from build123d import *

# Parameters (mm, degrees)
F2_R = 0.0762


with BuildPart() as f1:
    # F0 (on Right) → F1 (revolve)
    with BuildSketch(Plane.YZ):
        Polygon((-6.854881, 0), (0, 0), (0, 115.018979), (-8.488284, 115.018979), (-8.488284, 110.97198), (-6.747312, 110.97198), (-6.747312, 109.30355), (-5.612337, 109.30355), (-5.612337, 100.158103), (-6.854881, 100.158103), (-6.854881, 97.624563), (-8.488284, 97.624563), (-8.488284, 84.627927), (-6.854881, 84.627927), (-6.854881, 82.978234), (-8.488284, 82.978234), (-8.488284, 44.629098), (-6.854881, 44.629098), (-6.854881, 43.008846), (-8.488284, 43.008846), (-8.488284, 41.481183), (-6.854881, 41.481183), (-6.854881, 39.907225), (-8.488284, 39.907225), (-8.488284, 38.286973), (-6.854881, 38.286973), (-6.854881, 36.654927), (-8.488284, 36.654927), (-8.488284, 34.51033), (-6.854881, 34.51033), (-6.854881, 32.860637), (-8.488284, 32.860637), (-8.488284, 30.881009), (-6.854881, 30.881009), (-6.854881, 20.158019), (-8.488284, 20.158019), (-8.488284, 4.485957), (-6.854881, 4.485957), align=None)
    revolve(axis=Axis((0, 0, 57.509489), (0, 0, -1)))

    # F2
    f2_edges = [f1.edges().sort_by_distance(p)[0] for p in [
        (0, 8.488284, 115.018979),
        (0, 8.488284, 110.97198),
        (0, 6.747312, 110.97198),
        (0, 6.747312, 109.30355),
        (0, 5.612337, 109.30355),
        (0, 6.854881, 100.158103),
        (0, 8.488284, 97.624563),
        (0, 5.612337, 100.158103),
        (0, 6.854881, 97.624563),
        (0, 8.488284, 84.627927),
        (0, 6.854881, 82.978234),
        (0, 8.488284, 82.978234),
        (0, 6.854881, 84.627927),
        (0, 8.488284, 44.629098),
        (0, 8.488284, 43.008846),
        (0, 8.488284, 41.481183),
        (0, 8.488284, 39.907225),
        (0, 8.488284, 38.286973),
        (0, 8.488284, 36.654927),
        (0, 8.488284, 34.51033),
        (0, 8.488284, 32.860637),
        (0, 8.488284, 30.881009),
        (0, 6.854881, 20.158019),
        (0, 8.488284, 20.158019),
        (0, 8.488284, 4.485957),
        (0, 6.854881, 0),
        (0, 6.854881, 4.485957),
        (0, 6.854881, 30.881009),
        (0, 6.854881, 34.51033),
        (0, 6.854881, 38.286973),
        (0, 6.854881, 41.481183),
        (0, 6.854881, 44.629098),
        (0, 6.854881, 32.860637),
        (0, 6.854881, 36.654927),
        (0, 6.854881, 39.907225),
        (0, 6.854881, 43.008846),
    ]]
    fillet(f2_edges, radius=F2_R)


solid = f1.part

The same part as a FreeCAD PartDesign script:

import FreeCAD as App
import Part
import Sketcher
from FreeCAD import Vector
Q = App.Units.Quantity


def edges_at(feature, points):
    """Names of the edges that pass closest to the given points."""
    edges = feature.Shape.Edges
    near = lambda p: min(range(len(edges)), key=lambda i: edges[i].distToShape(Part.Vertex(*p))[0])
    return sorted({f"Edge{near(p) + 1}" for p in points})

doc = App.newDocument("Part")
body = doc.addObject("PartDesign::Body", "Body")

# Sketch on YZ plane
sketch1 = doc.addObject("Sketcher::SketchObject", "Sketch")
body.addObject(sketch1)
sketch1.AttachmentSupport = (doc.YZ_Plane, [""])
sketch1.MapMode = "FlatFace"
sketch1.addGeometry([
    Part.LineSegment(Vector(-6.9, 0, 0), Vector(0, 0, 0)),  # 0
    Part.LineSegment(Vector(0, 0, 0), Vector(0, 115, 0)),  # 1
    Part.LineSegment(Vector(0, 115, 0), Vector(-8.5, 115, 0)),  # 2
    Part.LineSegment(Vector(-8.5, 115, 0), Vector(-8.5, 111, 0)),  # 3
    Part.LineSegment(Vector(-8.5, 111, 0), Vector(-6.7, 111, 0)),  # 4
    Part.LineSegment(Vector(-6.7, 111, 0), Vector(-6.7, 109.3, 0)),  # 5
    Part.LineSegment(Vector(-6.7, 109.3, 0), Vector(-5.6, 109.3, 0)),  # 6
    Part.LineSegment(Vector(-5.6, 109.3, 0), Vector(-5.6, 100.2, 0)),  # 7
    Part.LineSegment(Vector(-5.6, 100.2, 0), Vector(-6.9, 100.2, 0)),  # 8
    Part.LineSegment(Vector(-6.9, 100.2, 0), Vector(-6.9, 97.6, 0)),  # 9
    Part.LineSegment(Vector(-6.9, 97.6, 0), Vector(-8.5, 97.6, 0)),  # 10
    Part.LineSegment(Vector(-8.5, 97.6, 0), Vector(-8.5, 84.6, 0)),  # 11
    Part.LineSegment(Vector(-8.5, 84.6, 0), Vector(-6.9, 84.6, 0)),  # 12
    Part.LineSegment(Vector(-6.9, 84.6, 0), Vector(-6.9, 83, 0)),  # 13
    Part.LineSegment(Vector(-6.9, 83, 0), Vector(-8.5, 83, 0)),  # 14
    Part.LineSegment(Vector(-8.5, 83, 0), Vector(-8.5, 44.6, 0)),  # 15
    Part.LineSegment(Vector(-8.5, 44.6, 0), Vector(-6.9, 44.6, 0)),  # 16
    Part.LineSegment(Vector(-6.9, 44.6, 0), Vector(-6.9, 43, 0)),  # 17
    Part.LineSegment(Vector(-6.9, 43, 0), Vector(-8.5, 43, 0)),  # 18
    Part.LineSegment(Vector(-8.5, 43, 0), Vector(-8.5, 41.5, 0)),  # 19
    Part.LineSegment(Vector(-8.5, 41.5, 0), Vector(-6.9, 41.5, 0)),  # 20
    Part.LineSegment(Vector(-6.9, 41.5, 0), Vector(-6.9, 39.9, 0)),  # 21
    Part.LineSegment(Vector(-6.9, 39.9, 0), Vector(-8.5, 39.9, 0)),  # 22
    Part.LineSegment(Vector(-8.5, 39.9, 0), Vector(-8.5, 38.3, 0)),  # 23
    Part.LineSegment(Vector(-8.5, 38.3, 0), Vector(-6.9, 38.3, 0)),  # 24
    Part.LineSegment(Vector(-6.9, 38.3, 0), Vector(-6.9, 36.7, 0)),  # 25
    Part.LineSegment(Vector(-6.9, 36.7, 0), Vector(-8.5, 36.7, 0)),  # 26
    Part.LineSegment(Vector(-8.5, 36.7, 0), Vector(-8.5, 34.5, 0)),  # 27
    Part.LineSegment(Vector(-8.5, 34.5, 0), Vector(-6.9, 34.5, 0)),  # 28
    Part.LineSegment(Vector(-6.9, 34.5, 0), Vector(-6.9, 32.9, 0)),  # 29
    Part.LineSegment(Vector(-6.9, 32.9, 0), Vector(-8.5, 32.9, 0)),  # 30
    Part.LineSegment(Vector(-8.5, 32.9, 0), Vector(-8.5, 30.9, 0)),  # 31
    Part.LineSegment(Vector(-8.5, 30.9, 0), Vector(-6.9, 30.9, 0)),  # 32
    Part.LineSegment(Vector(-6.9, 30.9, 0), Vector(-6.9, 20.2, 0)),  # 33
    Part.LineSegment(Vector(-6.9, 20.2, 0), Vector(-8.5, 20.2, 0)),  # 34
    Part.LineSegment(Vector(-8.5, 20.2, 0), Vector(-8.5, 4.5, 0)),  # 35
    Part.LineSegment(Vector(-8.5, 4.5, 0), Vector(-6.9, 4.5, 0)),  # 36
    Part.LineSegment(Vector(-6.9, 4.5, 0), Vector(-6.9, 0, 0)),  # 37
], False)
sketch1.addConstraint([
    Sketcher.Constraint("Coincident", 0, 2, 1, 1),
    Sketcher.Constraint("Coincident", 1, 2, 2, 1),
    Sketcher.Constraint("Coincident", 2, 2, 3, 1),
    Sketcher.Constraint("Coincident", 3, 2, 4, 1),
    Sketcher.Constraint("Coincident", 4, 2, 5, 1),
    Sketcher.Constraint("Coincident", 5, 2, 6, 1),
    Sketcher.Constraint("Coincident", 6, 2, 7, 1),
    Sketcher.Constraint("Coincident", 7, 2, 8, 1),
    Sketcher.Constraint("Coincident", 8, 2, 9, 1),
    Sketcher.Constraint("Coincident", 9, 2, 10, 1),
    Sketcher.Constraint("Coincident", 10, 2, 11, 1),
    Sketcher.Constraint("Coincident", 11, 2, 12, 1),
    Sketcher.Constraint("Coincident", 12, 2, 13, 1),
    Sketcher.Constraint("Coincident", 13, 2, 14, 1),
    Sketcher.Constraint("Coincident", 14, 2, 15, 1),
    Sketcher.Constraint("Coincident", 15, 2, 16, 1),
    Sketcher.Constraint("Coincident", 16, 2, 17, 1),
    Sketcher.Constraint("Coincident", 17, 2, 18, 1),
    Sketcher.Constraint("Coincident", 18, 2, 19, 1),
    Sketcher.Constraint("Coincident", 19, 2, 20, 1),
    Sketcher.Constraint("Coincident", 20, 2, 21, 1),
    Sketcher.Constraint("Coincident", 21, 2, 22, 1),
    Sketcher.Constraint("Coincident", 22, 2, 23, 1),
    Sketcher.Constraint("Coincident", 23, 2, 24, 1),
    Sketcher.Constraint("Coincident", 24, 2, 25, 1),
    Sketcher.Constraint("Coincident", 25, 2, 26, 1),
    Sketcher.Constraint("Coincident", 26, 2, 27, 1),
    Sketcher.Constraint("Coincident", 27, 2, 28, 1),
    Sketcher.Constraint("Coincident", 28, 2, 29, 1),
    Sketcher.Constraint("Coincident", 29, 2, 30, 1),
    Sketcher.Constraint("Coincident", 30, 2, 31, 1),
    Sketcher.Constraint("Coincident", 31, 2, 32, 1),
    Sketcher.Constraint("Coincident", 32, 2, 33, 1),
    Sketcher.Constraint("Coincident", 33, 2, 34, 1),
    Sketcher.Constraint("Coincident", 34, 2, 35, 1),
    Sketcher.Constraint("Coincident", 35, 2, 36, 1),
    Sketcher.Constraint("Coincident", 36, 2, 37, 1),
    Sketcher.Constraint("Coincident", 37, 2, 0, 1),
    Sketcher.Constraint("Horizontal", 0),
    Sketcher.Constraint("Vertical", 1),
    Sketcher.Constraint("Horizontal", 2),
    Sketcher.Constraint("Vertical", 3),
    Sketcher.Constraint("Horizontal", 4),
    Sketcher.Constraint("Vertical", 5),
    Sketcher.Constraint("Horizontal", 6),
    Sketcher.Constraint("Vertical", 7),
    Sketcher.Constraint("Horizontal", 8),
    Sketcher.Constraint("Vertical", 9),
    Sketcher.Constraint("Horizontal", 10),
    Sketcher.Constraint("Vertical", 11),
    Sketcher.Constraint("Horizontal", 12),
    Sketcher.Constraint("Vertical", 13),
    Sketcher.Constraint("Horizontal", 14),
    Sketcher.Constraint("Vertical", 15),
    Sketcher.Constraint("Horizontal", 16),
    Sketcher.Constraint("Vertical", 17),
    Sketcher.Constraint("Horizontal", 18),
    Sketcher.Constraint("Vertical", 19),
    Sketcher.Constraint("Horizontal", 20),
    Sketcher.Constraint("Vertical", 21),
    Sketcher.Constraint("Horizontal", 22),
    Sketcher.Constraint("Vertical", 23),
    Sketcher.Constraint("Horizontal", 24),
    Sketcher.Constraint("Vertical", 25),
    Sketcher.Constraint("Horizontal", 26),
    Sketcher.Constraint("Vertical", 27),
    Sketcher.Constraint("Horizontal", 28),
    Sketcher.Constraint("Vertical", 29),
    Sketcher.Constraint("Horizontal", 30),
    Sketcher.Constraint("Vertical", 31),
    Sketcher.Constraint("Horizontal", 32),
    Sketcher.Constraint("Vertical", 33),
    Sketcher.Constraint("Horizontal", 34),
    Sketcher.Constraint("Vertical", 35),
    Sketcher.Constraint("Horizontal", 36),
    Sketcher.Constraint("Vertical", 37),
    Sketcher.Constraint("Coincident", 0, 2, -1, 1),
    Sketcher.Constraint("Vertical", 3, 2, 10, 2),
    Sketcher.Constraint("Vertical", 9, 2, 12, 2),
    Sketcher.Constraint("Vertical", 11, 2, 14, 2),
    Sketcher.Constraint("Vertical", 13, 2, 16, 2),
    Sketcher.Constraint("Vertical", 15, 2, 18, 2),
    Sketcher.Constraint("Vertical", 17, 2, 20, 2),
    Sketcher.Constraint("Vertical", 19, 2, 22, 2),
    Sketcher.Constraint("Vertical", 21, 2, 24, 2),
    Sketcher.Constraint("Vertical", 23, 2, 26, 2),
    Sketcher.Constraint("Vertical", 25, 2, 28, 2),
    Sketcher.Constraint("Vertical", 27, 2, 30, 2),
    Sketcher.Constraint("Vertical", 29, 2, 32, 2),
    Sketcher.Constraint("Vertical", 31, 2, 34, 2),
    Sketcher.Constraint("Vertical", 33, 2, 36, 2),
    Sketcher.Constraint("Equal", 17, 23),
    Sketcher.Constraint("Equal", 13, 29),
    Sketcher.Constraint("DistanceY", 3, 2, 3, 1, Q("4.046999 mm")),
    Sketcher.Constraint("DistanceX", 0, 1, 0, 2, Q("6.854881 mm")),
    Sketcher.Constraint("DistanceY", 1, 1, 1, 2, Q("115.018979 mm")),
    Sketcher.Constraint("DistanceY", 5, 2, 5, 1, Q("1.66843 mm")),
    Sketcher.Constraint("DistanceY", 9, 2, 9, 1, Q("2.53354 mm")),
    Sketcher.Constraint("DistanceY", 21, 2, 21, 1, Q("1.573958 mm")),
    Sketcher.Constraint("DistanceY", 23, 2, 23, 1, Q("1.620252 mm")),
    Sketcher.Constraint("DistanceY", 33, 2, 33, 1, Q("10.72299 mm")),
    Sketcher.Constraint("DistanceX", 2, 2, 2, 1, Q("8.488284 mm")),
    Sketcher.Constraint("DistanceX", 4, 1, 4, 2, Q("1.740972 mm")),
    Sketcher.Constraint("DistanceX", 6, 1, 6, 2, Q("1.134975 mm")),
    Sketcher.Constraint("DistanceY", 7, 2, 7, 1, Q("9.145447 mm")),
    Sketcher.Constraint("DistanceY", 11, 2, 11, 1, Q("12.996636 mm")),
    Sketcher.Constraint("DistanceY", 13, 2, 13, 1, Q("1.649693 mm")),
    Sketcher.Constraint("DistanceY", 15, 2, 15, 1, Q("38.349136 mm")),
    Sketcher.Constraint("DistanceY", 19, 2, 19, 1, Q("1.527663 mm")),
    Sketcher.Constraint("DistanceY", 25, 2, 25, 1, Q("1.632046 mm")),
    Sketcher.Constraint("DistanceY", 27, 2, 27, 1, Q("2.144597 mm")),
    Sketcher.Constraint("DistanceY", 31, 2, 31, 1, Q("1.979628 mm")),
    Sketcher.Constraint("DistanceY", 35, 2, 35, 1, Q("15.672062 mm")),
])
revolution = doc.addObject("PartDesign::Revolution", "Revolution")
body.addObject(revolution)
revolution.Profile = sketch1
revolution.ReferenceAxis = (sketch1, ["V_Axis"])
revolution.Angle = 360
doc.recompute()

fillet = doc.addObject("PartDesign::Fillet", "Fillet")
body.addObject(fillet)
fillet.Base = (revolution, edges_at(revolution, [
    (0, 8.488, 115.019),
    (0, 8.488, 110.972),
    (0, 6.747, 110.972),
    (0, 6.747, 109.304),
    (0, 5.612, 109.304),
    (0, 6.855, 100.158),
    (0, 8.488, 97.625),
    (0, 5.612, 100.158),
    (0, 6.855, 97.625),
    (0, 8.488, 84.628),
    (0, 6.855, 82.978),
    (0, 8.488, 82.978),
    (0, 6.855, 84.628),
    (0, 8.488, 44.629),
    (0, 8.488, 43.009),
    (0, 8.488, 41.481),
    (0, 8.488, 39.907),
    (0, 8.488, 38.287),
    (0, 8.488, 36.655),
    (0, 8.488, 34.51),
    (0, 8.488, 32.861),
    (0, 8.488, 30.881),
    (0, 6.855, 20.158),
    (0, 8.488, 20.158),
    (0, 8.488, 4.486),
    (0, 6.855, 0),
    (0, 6.855, 4.486),
    (0, 6.855, 30.881),
    (0, 6.855, 34.51),
    (0, 6.855, 38.287),
    (0, 6.855, 41.481),
    (0, 6.855, 44.629),
    (0, 6.855, 32.861),
    (0, 6.855, 36.655),
    (0, 6.855, 39.907),
    (0, 6.855, 43.009),
]))
fillet.Radius = Q("0.003 in")

doc.recompute()
